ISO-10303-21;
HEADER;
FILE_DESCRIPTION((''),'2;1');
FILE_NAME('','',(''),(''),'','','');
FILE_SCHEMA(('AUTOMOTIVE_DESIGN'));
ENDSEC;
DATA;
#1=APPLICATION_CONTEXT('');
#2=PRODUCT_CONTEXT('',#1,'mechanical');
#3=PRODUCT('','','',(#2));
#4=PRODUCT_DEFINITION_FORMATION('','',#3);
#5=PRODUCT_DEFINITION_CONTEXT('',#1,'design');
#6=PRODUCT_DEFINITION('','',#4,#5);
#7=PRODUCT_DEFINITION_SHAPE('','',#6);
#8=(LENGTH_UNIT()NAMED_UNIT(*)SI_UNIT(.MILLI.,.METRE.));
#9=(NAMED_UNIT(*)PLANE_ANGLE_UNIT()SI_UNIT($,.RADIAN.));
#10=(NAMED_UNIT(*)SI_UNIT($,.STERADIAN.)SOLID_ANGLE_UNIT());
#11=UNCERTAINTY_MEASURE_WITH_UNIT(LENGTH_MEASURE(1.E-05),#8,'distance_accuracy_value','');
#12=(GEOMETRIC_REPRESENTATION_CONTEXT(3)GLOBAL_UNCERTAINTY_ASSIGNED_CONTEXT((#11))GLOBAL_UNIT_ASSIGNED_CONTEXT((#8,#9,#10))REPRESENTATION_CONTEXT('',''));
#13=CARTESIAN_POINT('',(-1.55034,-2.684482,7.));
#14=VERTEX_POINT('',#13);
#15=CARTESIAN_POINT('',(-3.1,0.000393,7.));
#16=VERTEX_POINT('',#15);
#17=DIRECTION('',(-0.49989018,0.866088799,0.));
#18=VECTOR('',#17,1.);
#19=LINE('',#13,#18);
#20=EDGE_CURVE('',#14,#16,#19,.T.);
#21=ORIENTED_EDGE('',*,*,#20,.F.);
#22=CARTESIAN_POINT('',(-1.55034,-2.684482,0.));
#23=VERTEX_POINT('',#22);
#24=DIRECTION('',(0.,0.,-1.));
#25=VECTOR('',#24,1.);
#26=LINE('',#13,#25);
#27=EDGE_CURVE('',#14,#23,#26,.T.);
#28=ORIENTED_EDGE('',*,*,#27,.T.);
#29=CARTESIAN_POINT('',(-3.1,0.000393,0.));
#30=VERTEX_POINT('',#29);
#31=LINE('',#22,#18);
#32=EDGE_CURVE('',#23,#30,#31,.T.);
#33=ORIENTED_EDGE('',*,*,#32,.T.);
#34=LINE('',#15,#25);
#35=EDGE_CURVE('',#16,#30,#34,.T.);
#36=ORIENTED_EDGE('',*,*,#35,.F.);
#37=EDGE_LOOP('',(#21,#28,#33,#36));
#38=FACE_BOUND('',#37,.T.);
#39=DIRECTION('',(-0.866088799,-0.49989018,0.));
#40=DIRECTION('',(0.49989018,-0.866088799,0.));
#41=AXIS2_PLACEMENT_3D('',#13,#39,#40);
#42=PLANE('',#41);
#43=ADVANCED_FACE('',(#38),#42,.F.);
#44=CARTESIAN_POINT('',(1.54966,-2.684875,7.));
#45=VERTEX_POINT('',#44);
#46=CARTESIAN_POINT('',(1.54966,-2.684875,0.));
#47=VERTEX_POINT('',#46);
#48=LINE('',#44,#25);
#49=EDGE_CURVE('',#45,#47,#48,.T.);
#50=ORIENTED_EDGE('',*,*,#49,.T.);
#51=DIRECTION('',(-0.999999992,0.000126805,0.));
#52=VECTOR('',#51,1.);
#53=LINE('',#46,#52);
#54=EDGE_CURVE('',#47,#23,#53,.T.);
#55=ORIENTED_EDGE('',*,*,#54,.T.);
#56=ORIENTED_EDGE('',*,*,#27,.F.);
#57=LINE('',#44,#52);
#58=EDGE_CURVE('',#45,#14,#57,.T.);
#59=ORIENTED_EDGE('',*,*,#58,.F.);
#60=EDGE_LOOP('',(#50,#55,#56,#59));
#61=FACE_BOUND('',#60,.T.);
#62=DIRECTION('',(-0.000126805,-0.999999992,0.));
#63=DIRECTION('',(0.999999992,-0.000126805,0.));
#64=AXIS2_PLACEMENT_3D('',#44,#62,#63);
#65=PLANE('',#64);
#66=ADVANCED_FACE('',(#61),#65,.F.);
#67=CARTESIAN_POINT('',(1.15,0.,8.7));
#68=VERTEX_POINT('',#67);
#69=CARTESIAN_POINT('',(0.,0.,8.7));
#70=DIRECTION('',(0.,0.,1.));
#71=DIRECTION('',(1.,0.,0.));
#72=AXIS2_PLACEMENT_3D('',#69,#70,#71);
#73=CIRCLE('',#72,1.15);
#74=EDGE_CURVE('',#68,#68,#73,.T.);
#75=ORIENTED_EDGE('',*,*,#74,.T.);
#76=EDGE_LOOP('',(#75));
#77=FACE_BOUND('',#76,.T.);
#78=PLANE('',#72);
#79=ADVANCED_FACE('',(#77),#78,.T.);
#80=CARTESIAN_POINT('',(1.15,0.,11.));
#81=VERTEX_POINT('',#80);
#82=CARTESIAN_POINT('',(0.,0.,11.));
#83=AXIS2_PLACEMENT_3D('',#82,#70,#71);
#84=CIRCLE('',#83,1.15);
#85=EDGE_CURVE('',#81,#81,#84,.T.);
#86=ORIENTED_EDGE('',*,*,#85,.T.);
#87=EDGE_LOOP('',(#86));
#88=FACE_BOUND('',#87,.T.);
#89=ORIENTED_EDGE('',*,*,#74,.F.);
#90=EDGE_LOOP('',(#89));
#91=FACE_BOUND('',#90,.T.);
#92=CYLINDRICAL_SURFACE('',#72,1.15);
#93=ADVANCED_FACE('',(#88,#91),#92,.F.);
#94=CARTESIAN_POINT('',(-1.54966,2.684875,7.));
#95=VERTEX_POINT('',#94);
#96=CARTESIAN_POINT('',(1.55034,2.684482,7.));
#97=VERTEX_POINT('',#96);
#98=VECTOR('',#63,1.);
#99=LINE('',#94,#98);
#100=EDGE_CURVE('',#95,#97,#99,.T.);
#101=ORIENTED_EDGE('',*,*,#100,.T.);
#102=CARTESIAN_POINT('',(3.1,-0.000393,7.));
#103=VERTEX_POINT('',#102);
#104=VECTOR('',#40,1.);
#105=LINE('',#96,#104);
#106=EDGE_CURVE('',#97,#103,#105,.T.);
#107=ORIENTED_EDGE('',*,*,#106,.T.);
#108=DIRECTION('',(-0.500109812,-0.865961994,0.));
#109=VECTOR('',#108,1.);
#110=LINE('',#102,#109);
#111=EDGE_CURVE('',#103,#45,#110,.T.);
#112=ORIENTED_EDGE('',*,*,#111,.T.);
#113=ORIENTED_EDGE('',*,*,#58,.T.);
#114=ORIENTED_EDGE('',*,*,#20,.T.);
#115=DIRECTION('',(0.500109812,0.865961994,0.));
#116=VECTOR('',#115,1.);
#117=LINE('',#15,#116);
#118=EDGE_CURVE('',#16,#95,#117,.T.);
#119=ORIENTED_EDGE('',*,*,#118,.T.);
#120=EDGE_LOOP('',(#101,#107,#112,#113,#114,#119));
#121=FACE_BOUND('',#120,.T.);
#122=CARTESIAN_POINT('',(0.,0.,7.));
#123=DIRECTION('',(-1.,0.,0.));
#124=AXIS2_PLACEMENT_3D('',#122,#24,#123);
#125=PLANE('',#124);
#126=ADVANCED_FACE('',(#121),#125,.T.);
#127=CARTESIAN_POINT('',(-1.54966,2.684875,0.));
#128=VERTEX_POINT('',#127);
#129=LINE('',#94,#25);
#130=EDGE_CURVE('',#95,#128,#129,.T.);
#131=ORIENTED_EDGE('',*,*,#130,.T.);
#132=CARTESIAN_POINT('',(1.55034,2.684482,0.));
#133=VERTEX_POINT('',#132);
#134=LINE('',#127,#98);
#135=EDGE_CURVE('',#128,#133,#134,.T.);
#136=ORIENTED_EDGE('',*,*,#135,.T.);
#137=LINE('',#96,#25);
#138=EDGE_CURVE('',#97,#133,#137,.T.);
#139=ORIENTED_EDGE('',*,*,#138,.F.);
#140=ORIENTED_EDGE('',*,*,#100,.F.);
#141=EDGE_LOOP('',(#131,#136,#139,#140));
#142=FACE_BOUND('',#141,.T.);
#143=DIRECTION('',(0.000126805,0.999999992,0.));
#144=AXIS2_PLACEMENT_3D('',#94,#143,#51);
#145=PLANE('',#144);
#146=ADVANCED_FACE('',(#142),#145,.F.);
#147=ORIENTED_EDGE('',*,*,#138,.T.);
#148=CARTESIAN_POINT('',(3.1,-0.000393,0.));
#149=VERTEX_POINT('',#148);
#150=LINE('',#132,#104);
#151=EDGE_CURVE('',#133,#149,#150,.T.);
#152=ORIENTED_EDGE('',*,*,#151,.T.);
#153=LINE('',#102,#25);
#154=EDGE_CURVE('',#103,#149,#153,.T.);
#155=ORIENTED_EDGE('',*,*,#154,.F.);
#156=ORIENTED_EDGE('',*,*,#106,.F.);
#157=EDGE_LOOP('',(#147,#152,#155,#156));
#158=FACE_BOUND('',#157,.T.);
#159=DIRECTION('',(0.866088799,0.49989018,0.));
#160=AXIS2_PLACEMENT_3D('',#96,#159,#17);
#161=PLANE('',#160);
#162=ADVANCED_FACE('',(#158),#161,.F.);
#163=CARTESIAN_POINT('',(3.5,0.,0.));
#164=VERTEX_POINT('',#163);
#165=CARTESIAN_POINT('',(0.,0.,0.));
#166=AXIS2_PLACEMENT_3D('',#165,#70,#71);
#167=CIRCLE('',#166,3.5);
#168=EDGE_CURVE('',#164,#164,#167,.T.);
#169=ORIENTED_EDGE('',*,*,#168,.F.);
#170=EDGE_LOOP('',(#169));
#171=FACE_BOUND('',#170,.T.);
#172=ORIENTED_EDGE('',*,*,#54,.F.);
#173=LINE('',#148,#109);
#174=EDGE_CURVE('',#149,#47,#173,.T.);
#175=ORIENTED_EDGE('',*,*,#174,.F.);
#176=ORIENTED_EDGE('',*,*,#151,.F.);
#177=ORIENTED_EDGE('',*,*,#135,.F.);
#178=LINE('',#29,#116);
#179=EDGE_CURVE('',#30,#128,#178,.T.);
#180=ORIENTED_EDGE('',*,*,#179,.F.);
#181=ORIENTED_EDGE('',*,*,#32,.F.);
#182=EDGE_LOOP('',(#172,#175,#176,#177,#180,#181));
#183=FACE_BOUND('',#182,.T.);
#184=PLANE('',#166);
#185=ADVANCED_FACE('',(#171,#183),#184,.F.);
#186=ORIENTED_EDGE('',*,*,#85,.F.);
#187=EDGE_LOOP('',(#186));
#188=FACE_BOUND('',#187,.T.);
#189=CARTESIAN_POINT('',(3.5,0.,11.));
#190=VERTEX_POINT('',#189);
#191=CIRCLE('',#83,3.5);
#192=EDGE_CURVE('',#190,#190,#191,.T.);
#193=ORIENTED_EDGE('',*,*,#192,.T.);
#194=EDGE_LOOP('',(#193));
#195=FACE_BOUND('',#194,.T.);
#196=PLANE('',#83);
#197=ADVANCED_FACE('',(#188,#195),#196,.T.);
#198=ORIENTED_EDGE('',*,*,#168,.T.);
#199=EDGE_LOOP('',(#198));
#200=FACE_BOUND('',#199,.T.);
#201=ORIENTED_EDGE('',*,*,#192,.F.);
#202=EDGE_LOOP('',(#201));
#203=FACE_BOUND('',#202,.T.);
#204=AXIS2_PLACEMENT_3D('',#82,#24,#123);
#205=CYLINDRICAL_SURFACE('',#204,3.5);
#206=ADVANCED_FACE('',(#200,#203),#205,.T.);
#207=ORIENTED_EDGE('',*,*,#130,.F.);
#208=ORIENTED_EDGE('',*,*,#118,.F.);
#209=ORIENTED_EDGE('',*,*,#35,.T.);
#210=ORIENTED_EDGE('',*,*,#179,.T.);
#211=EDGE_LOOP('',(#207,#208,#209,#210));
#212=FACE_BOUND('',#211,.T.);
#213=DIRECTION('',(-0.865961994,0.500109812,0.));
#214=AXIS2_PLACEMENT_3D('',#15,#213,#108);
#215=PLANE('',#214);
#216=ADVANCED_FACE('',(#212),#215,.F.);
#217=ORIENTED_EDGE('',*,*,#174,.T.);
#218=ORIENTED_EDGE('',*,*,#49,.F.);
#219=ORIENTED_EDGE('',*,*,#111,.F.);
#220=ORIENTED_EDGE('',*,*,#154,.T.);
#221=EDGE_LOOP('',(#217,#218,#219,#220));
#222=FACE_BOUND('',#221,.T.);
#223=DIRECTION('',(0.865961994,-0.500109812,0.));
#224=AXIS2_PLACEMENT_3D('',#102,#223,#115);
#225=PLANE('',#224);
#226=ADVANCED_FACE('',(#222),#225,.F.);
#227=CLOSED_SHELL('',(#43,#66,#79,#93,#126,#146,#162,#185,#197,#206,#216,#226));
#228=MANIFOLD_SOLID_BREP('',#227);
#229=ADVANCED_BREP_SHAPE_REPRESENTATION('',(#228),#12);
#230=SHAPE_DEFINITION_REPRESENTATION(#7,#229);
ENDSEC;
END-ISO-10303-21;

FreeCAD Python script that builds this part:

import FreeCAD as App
import Part
import Sketcher
Q = App.Units.Quantity


def add_polygon(sketch, points):
    """Adds a closed chain of lines whose ends are joined by coincident constraints."""
    first, n = sketch.GeometryCount, len(points)
    for a, b in zip(points, points[1:] + points[:1]):
        sketch.addGeometry(Part.LineSegment(App.Vector(*a, 0), App.Vector(*b, 0)), False)
    for i in range(n):
        sketch.addConstraint(Sketcher.Constraint("Coincident", first + i, 2, first + (i + 1) % n, 1))

doc = App.newDocument("Part")
body = doc.addObject("PartDesign::Body", "Body")

# Sketch on XY plane
sketch1 = doc.addObject("Sketcher::SketchObject", "Sketch")
body.addObject(sketch1)
sketch1.AttachmentSupport = (doc.XY_Plane, [""])
sketch1.MapMode = "FlatFace"
sketch1.addGeometry(Part.Circle(App.Vector(0, 0, 0), App.Vector(0, 0, 1), 3.5), False)
sketch1.addConstraint(Sketcher.Constraint("Coincident", 0, 3, -1, 1))
sketch1.addConstraint(Sketcher.Constraint("Diameter", 0, Q("7 mm")))
pad1 = doc.addObject("PartDesign::Pad", "Pad")
body.addObject(pad1)
pad1.Profile = sketch1
pad1.Length = 11

# Sketch on XY plane
sketch2 = doc.addObject("Sketcher::SketchObject", "Sketch001")
body.addObject(sketch2)
sketch2.AttachmentSupport = (doc.XY_Plane, [""])
sketch2.MapMode = "FlatFace"
add_polygon(sketch2, [(-1.5, 2.7), (1.6, 2.7), (3.1, 0), (1.5, -2.7), (-1.6, -2.7), (-3.1, 0)])  # lines 0-5
sketch2.addConstraint(Sketcher.Constraint("Symmetric", 0, 2, 3, 2, -1, 1))
sketch2.addConstraint(Sketcher.Constraint("Symmetric", 1, 2, 4, 2, -1, 1))
sketch2.addConstraint(Sketcher.Constraint("Symmetric", 2, 2, 5, 2, -1, 1))
sketch2.addConstraint(Sketcher.Constraint("Equal", 0, 1))
sketch2.addConstraint(Sketcher.Constraint("Equal", 1, 2))
sketch2.addConstraint(Sketcher.Constraint("Distance", 0, Q("3.1 mm")))
sketch2.addConstraint(Sketcher.Constraint("DistanceX", -1, 1, 1, 2, Q("3.1 mm")))
sketch2.addConstraint(Sketcher.Constraint("DistanceX", -1, 1, 0, 2, Q("1.55034 mm")))
sketch2.addConstraint(Sketcher.Constraint("DistanceY", 3, 2, 1, 2, Q("2.684089 mm")))
pocket1 = doc.addObject("PartDesign::Pocket", "Pocket")
body.addObject(pocket1)
pocket1.Profile = sketch2
pocket1.Length = 7
pocket1.Reversed = True

# Sketch on XY plane
sketch3 = doc.addObject("Sketcher::SketchObject", "Sketch002")
body.addObject(sketch3)
sketch3.AttachmentSupport = (doc.XY_Plane, [""])
sketch3.MapMode = "FlatFace"
sketch3.AttachmentOffset = App.Placement(App.Vector(0, 0, 11), App.Rotation())
sketch3.addGeometry(Part.Circle(App.Vector(0, 0, 0), App.Vector(0, 0, 1), 1.1), False)
sketch3.addConstraint(Sketcher.Constraint("Coincident", 0, 3, -1, 1))
sketch3.addConstraint(Sketcher.Constraint("Diameter", 0, Q("2.3 mm")))
pocket2 = doc.addObject("PartDesign::Pocket", "Pocket001")
body.addObject(pocket2)
pocket2.Profile = sketch3
pocket2.Length = 2.3

doc.recompute()
